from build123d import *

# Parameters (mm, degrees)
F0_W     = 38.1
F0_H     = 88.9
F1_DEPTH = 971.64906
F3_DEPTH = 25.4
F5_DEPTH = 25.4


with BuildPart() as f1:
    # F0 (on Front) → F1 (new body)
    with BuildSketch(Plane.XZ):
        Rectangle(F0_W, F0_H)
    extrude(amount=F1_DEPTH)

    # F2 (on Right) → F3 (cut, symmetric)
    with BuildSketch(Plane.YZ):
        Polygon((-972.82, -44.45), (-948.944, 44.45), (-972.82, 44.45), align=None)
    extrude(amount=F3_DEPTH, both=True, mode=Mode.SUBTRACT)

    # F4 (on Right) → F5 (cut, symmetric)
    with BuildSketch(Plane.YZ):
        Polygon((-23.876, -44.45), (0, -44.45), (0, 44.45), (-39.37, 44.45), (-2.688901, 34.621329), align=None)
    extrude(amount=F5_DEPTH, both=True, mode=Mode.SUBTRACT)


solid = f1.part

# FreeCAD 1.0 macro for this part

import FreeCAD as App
import Part
import Sketcher
Q = App.Units.Quantity


def add_polygon(sketch, points):
    """Adds a closed chain of lines whose ends are joined by coincident constraints."""
    first, n = sketch.GeometryCount, len(points)
    for a, b in zip(points, points[1:] + points[:1]):
        sketch.addGeometry(Part.LineSegment(App.Vector(*a, 0), App.Vector(*b, 0)), False)
    for i in range(n):
        sketch.addConstraint(Sketcher.Constraint("Coincident", first + i, 2, first + (i + 1) % n, 1))

doc = App.newDocument("Part")
body = doc.addObject("PartDesign::Body", "Body")

# Sketch on XZ plane
sketch1 = body.newObject("Sketcher::SketchObject", "Sketch")
sketch1.AttachmentSupport = (doc.getObject("XZ_Plane"), [""])
sketch1.MapMode = "FlatFace"
add_polygon(sketch1, [(-19, 44), (-19, -44), (19, -44), (19, 44)])  # lines 0-3
sketch1.addConstraint([
    Sketcher.Constraint("Vertical", 0),
    Sketcher.Constraint("Horizontal", 1),
    Sketcher.Constraint("Vertical", 2),
    Sketcher.Constraint("Horizontal", 3),
    Sketcher.Constraint("Symmetric", 0, 2, 2, 2, -1, 1),
    Sketcher.Constraint("DistanceX", 1, 1, 1, 2, Q("1.5 in")),
    Sketcher.Constraint("DistanceY", 0, 2, 0, 1, Q("3.5 in")),
])
pad1 = body.newObject("PartDesign::Pad", "Pad")
pad1.Profile = sketch1
pad1.Length = Q("38.2539 in")

# Sketch on YZ plane
sketch2 = body.newObject("Sketcher::SketchObject", "Sketch001")
sketch2.AttachmentSupport = (doc.getObject("YZ_Plane"), [""])
sketch2.MapMode = "FlatFace"
add_polygon(sketch2, [(-973, -44), (-949, 44), (-973, 44)])  # lines 0-2
sketch2.addConstraint([
    Sketcher.Constraint("Horizontal", 1),
    Sketcher.Constraint("Vertical", 2),
    Sketcher.Constraint("DistanceY", 2, 2, 2, 1, Q("3.5 in")),
    Sketcher.Constraint("DistanceX", 1, 2, 1, 1, Q("0.94 in")),
    Sketcher.Constraint("DistanceX", 1, 2, -1, 1, Q("38.3 in")),
    Sketcher.Constraint("DistanceY", -1, 1, 0, 2, Q("1.75 in")),
])
pocket1 = body.newObject("PartDesign::Pocket", "Pocket")
pocket1.Profile = sketch2
pocket1.Length = Q("2 in")
pocket1.Midplane = True

# Sketch on YZ plane
sketch3 = body.newObject("Sketcher::SketchObject", "Sketch002")
sketch3.AttachmentSupport = (doc.getObject("YZ_Plane"), [""])
sketch3.MapMode = "FlatFace"
add_polygon(sketch3, [(-24, -44), (0, -44), (0, 44), (-39, 44), (-3, 35)])  # lines 0-4
sketch3.addConstraint([
    Sketcher.Constraint("Horizontal", 0),
    Sketcher.Constraint("Vertical", 1),
    Sketcher.Constraint("Horizontal", 2),
    Sketcher.Constraint("Symmetric", 0, 2, 1, 2, -1, 1),
    Sketcher.Constraint("Perpendicular", 3, 4),
    Sketcher.Constraint("DistanceY", 1, 1, 1, 2, Q("3.5 in")),
    Sketcher.Constraint("Angle", 3, Q("-15 deg")),
    Sketcher.Constraint("DistanceX", 0, 1, 0, 2, Q("0.94 in")),
    Sketcher.Constraint("DistanceX", 2, 2, 2, 1, Q("1.55 in")),
])
pocket2 = body.newObject("PartDesign::Pocket", "Pocket001")
pocket2.Profile = sketch3
pocket2.Length = Q("2 in")
pocket2.Midplane = True

doc.recompute()
